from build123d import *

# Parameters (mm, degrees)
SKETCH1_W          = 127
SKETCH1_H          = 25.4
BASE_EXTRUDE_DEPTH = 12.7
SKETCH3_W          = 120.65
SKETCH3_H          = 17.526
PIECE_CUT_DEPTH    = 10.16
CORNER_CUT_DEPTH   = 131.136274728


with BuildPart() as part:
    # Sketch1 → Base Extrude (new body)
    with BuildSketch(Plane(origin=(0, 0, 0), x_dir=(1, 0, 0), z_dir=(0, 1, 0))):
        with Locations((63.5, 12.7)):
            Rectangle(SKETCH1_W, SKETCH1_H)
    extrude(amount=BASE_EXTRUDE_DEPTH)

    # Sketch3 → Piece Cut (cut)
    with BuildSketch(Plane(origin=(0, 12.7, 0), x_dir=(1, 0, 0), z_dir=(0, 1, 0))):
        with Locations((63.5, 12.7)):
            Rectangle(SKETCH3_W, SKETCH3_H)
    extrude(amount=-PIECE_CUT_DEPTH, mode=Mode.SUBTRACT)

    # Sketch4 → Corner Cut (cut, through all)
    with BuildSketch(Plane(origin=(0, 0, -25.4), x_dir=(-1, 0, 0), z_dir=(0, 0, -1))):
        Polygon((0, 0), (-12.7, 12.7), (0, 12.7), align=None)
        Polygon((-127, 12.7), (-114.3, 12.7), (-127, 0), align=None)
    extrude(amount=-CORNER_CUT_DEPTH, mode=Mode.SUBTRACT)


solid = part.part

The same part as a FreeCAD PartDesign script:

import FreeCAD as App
import Part
import Sketcher
from FreeCAD import Vector
Q = App.Units.Quantity

doc = App.newDocument("Part")
body = doc.addObject("PartDesign::Body", "Body")

sketch1 = body.newObject("Sketcher::SketchObject", "Sketch")
sketch1.AttachmentSupport = (doc.getObject("XZ_Plane"), [""])
sketch1.MapMode = "FlatFace"
sketch1.addGeometry([
    Part.LineSegment(Vector(0, -25.4, 0), Vector(0, 0, 0)),
    Part.LineSegment(Vector(0, 0, 0), Vector(127, 0, 0)),
    Part.LineSegment(Vector(127, 0, 0), Vector(127, -25.4, 0)),
    Part.LineSegment(Vector(127, -25.4, 0), Vector(0, -25.4, 0)),
], False)
sketch1.addConstraint([
    Sketcher.Constraint("Coincident", 0, 2, 1, 1),
    Sketcher.Constraint("Coincident", 1, 2, 2, 1),
    Sketcher.Constraint("Coincident", 2, 2, 3, 1),
    Sketcher.Constraint("Coincident", 3, 2, 0, 1),
    Sketcher.Constraint("Vertical", 0),
    Sketcher.Constraint("Horizontal", 1),
    Sketcher.Constraint("Vertical", 2),
    Sketcher.Constraint("Horizontal", 3),
    Sketcher.Constraint("Coincident", 0, 2, -1, 1),
    Sketcher.Constraint("DistanceX", 1, 1, 1, 2, Q("5 in")),
    Sketcher.Constraint("DistanceY", 0, 1, 0, 2, Q("1 in")),
])
pad1 = body.newObject("PartDesign::Pad", "Pad")
pad1.Profile = sketch1
pad1.Length = Q("0.5 in")
pad1.Reversed = True

sketch2 = body.newObject("Sketcher::SketchObject", "Sketch001")
sketch2.AttachmentSupport = (doc.getObject("XZ_Plane"), [""])
sketch2.MapMode = "FlatFace"
sketch2.AttachmentOffset = App.Placement(Vector(0, 0, -0.5 * 25.4), App.Rotation())
sketch2.addGeometry([
    Part.LineSegment(Vector(3.175, -21.463, 0), Vector(3.175, -3.937, 0)),
    Part.LineSegment(Vector(3.175, -3.937, 0), Vector(123.825, -3.937, 0)),
    Part.LineSegment(Vector(123.825, -3.937, 0), Vector(123.825, -21.463, 0)),
    Part.LineSegment(Vector(123.825, -21.463, 0), Vector(3.175, -21.463, 0)),
], False)
sketch2.addConstraint([
    Sketcher.Constraint("Coincident", 0, 2, 1, 1),
    Sketcher.Constraint("Coincident", 1, 2, 2, 1),
    Sketcher.Constraint("Coincident", 2, 2, 3, 1),
    Sketcher.Constraint("Coincident", 3, 2, 0, 1),
    Sketcher.Constraint("Vertical", 0),
    Sketcher.Constraint("Horizontal", 1),
    Sketcher.Constraint("Vertical", 2),
    Sketcher.Constraint("Horizontal", 3),
    Sketcher.Constraint("DistanceX", 1, 1, 1, 2, Q("4.75 in")),
    Sketcher.Constraint("DistanceY", 0, 1, 0, 2, Q("0.69 in")),
    Sketcher.Constraint("DistanceX", -1, 1, 0, 2, Q("0.125 in")),
    Sketcher.Constraint("DistanceY", 0, 2, -1, 1, Q("0.155 in")),
])
pocket1 = body.newObject("PartDesign::Pocket", "Pocket")
pocket1.Profile = sketch2
pocket1.Length = Q("0.4 in")
pocket1.Reversed = True

sketch3 = body.newObject("Sketcher::SketchObject", "Sketch002")
sketch3.AttachmentSupport = (doc.getObject("XY_Plane"), [""])
sketch3.MapMode = "FlatFace"
sketch3.AttachmentOffset = App.Placement(Vector(0, 0, -1 * 25.4), App.Rotation())
sketch3.addGeometry([
    Part.LineSegment(Vector(12.7, 12.7, 0), Vector(0, 0, 0)),
    Part.LineSegment(Vector(0, 0, 0), Vector(0, 12.7, 0)),
    Part.LineSegment(Vector(0, 12.7, 0), Vector(12.7, 12.7, 0)),
    Part.LineSegment(Vector(114.3, 12.7, 0), Vector(127, 12.7, 0)),
    Part.LineSegment(Vector(127, 12.7, 0), Vector(127, 0, 0)),
    Part.LineSegment(Vector(127, 0, 0), Vector(114.3, 12.7, 0)),
], False)
sketch3.addConstraint([
    Sketcher.Constraint("Coincident", 0, 2, 1, 1),
    Sketcher.Constraint("Coincident", 1, 2, 2, 1),
    Sketcher.Constraint("Coincident", 2, 2, 0, 1),
    Sketcher.Constraint("Coincident", 3, 2, 4, 1),
    Sketcher.Constraint("Coincident", 4, 2, 5, 1),
    Sketcher.Constraint("Coincident", 5, 2, 3, 1),
    Sketcher.Constraint("Vertical", 1),
    Sketcher.Constraint("Horizontal", 2),
    Sketcher.Constraint("Horizontal", 3),
    Sketcher.Constraint("Vertical", 4),
    Sketcher.Constraint("Coincident", 0, 2, -1, 1),
    Sketcher.Constraint("PointOnObject", 4, 2, -1),
    Sketcher.Constraint("Perpendicular", 0, 5),
    Sketcher.Constraint("Horizontal", 2, 2, 3, 2),
    Sketcher.Constraint("Equal", 2, 3),
    Sketcher.Constraint("DistanceX", 2, 1, 2, 2, Q("0.5 in")),
    Sketcher.Constraint("DistanceX", -1, 1, 3, 2, Q("5 in")),
])
pocket2 = body.newObject("PartDesign::Pocket", "Pocket001")
pocket2.Profile = sketch3
pocket2.Type = "ThroughAll"
pocket2.Reversed = True

doc.recompute()
